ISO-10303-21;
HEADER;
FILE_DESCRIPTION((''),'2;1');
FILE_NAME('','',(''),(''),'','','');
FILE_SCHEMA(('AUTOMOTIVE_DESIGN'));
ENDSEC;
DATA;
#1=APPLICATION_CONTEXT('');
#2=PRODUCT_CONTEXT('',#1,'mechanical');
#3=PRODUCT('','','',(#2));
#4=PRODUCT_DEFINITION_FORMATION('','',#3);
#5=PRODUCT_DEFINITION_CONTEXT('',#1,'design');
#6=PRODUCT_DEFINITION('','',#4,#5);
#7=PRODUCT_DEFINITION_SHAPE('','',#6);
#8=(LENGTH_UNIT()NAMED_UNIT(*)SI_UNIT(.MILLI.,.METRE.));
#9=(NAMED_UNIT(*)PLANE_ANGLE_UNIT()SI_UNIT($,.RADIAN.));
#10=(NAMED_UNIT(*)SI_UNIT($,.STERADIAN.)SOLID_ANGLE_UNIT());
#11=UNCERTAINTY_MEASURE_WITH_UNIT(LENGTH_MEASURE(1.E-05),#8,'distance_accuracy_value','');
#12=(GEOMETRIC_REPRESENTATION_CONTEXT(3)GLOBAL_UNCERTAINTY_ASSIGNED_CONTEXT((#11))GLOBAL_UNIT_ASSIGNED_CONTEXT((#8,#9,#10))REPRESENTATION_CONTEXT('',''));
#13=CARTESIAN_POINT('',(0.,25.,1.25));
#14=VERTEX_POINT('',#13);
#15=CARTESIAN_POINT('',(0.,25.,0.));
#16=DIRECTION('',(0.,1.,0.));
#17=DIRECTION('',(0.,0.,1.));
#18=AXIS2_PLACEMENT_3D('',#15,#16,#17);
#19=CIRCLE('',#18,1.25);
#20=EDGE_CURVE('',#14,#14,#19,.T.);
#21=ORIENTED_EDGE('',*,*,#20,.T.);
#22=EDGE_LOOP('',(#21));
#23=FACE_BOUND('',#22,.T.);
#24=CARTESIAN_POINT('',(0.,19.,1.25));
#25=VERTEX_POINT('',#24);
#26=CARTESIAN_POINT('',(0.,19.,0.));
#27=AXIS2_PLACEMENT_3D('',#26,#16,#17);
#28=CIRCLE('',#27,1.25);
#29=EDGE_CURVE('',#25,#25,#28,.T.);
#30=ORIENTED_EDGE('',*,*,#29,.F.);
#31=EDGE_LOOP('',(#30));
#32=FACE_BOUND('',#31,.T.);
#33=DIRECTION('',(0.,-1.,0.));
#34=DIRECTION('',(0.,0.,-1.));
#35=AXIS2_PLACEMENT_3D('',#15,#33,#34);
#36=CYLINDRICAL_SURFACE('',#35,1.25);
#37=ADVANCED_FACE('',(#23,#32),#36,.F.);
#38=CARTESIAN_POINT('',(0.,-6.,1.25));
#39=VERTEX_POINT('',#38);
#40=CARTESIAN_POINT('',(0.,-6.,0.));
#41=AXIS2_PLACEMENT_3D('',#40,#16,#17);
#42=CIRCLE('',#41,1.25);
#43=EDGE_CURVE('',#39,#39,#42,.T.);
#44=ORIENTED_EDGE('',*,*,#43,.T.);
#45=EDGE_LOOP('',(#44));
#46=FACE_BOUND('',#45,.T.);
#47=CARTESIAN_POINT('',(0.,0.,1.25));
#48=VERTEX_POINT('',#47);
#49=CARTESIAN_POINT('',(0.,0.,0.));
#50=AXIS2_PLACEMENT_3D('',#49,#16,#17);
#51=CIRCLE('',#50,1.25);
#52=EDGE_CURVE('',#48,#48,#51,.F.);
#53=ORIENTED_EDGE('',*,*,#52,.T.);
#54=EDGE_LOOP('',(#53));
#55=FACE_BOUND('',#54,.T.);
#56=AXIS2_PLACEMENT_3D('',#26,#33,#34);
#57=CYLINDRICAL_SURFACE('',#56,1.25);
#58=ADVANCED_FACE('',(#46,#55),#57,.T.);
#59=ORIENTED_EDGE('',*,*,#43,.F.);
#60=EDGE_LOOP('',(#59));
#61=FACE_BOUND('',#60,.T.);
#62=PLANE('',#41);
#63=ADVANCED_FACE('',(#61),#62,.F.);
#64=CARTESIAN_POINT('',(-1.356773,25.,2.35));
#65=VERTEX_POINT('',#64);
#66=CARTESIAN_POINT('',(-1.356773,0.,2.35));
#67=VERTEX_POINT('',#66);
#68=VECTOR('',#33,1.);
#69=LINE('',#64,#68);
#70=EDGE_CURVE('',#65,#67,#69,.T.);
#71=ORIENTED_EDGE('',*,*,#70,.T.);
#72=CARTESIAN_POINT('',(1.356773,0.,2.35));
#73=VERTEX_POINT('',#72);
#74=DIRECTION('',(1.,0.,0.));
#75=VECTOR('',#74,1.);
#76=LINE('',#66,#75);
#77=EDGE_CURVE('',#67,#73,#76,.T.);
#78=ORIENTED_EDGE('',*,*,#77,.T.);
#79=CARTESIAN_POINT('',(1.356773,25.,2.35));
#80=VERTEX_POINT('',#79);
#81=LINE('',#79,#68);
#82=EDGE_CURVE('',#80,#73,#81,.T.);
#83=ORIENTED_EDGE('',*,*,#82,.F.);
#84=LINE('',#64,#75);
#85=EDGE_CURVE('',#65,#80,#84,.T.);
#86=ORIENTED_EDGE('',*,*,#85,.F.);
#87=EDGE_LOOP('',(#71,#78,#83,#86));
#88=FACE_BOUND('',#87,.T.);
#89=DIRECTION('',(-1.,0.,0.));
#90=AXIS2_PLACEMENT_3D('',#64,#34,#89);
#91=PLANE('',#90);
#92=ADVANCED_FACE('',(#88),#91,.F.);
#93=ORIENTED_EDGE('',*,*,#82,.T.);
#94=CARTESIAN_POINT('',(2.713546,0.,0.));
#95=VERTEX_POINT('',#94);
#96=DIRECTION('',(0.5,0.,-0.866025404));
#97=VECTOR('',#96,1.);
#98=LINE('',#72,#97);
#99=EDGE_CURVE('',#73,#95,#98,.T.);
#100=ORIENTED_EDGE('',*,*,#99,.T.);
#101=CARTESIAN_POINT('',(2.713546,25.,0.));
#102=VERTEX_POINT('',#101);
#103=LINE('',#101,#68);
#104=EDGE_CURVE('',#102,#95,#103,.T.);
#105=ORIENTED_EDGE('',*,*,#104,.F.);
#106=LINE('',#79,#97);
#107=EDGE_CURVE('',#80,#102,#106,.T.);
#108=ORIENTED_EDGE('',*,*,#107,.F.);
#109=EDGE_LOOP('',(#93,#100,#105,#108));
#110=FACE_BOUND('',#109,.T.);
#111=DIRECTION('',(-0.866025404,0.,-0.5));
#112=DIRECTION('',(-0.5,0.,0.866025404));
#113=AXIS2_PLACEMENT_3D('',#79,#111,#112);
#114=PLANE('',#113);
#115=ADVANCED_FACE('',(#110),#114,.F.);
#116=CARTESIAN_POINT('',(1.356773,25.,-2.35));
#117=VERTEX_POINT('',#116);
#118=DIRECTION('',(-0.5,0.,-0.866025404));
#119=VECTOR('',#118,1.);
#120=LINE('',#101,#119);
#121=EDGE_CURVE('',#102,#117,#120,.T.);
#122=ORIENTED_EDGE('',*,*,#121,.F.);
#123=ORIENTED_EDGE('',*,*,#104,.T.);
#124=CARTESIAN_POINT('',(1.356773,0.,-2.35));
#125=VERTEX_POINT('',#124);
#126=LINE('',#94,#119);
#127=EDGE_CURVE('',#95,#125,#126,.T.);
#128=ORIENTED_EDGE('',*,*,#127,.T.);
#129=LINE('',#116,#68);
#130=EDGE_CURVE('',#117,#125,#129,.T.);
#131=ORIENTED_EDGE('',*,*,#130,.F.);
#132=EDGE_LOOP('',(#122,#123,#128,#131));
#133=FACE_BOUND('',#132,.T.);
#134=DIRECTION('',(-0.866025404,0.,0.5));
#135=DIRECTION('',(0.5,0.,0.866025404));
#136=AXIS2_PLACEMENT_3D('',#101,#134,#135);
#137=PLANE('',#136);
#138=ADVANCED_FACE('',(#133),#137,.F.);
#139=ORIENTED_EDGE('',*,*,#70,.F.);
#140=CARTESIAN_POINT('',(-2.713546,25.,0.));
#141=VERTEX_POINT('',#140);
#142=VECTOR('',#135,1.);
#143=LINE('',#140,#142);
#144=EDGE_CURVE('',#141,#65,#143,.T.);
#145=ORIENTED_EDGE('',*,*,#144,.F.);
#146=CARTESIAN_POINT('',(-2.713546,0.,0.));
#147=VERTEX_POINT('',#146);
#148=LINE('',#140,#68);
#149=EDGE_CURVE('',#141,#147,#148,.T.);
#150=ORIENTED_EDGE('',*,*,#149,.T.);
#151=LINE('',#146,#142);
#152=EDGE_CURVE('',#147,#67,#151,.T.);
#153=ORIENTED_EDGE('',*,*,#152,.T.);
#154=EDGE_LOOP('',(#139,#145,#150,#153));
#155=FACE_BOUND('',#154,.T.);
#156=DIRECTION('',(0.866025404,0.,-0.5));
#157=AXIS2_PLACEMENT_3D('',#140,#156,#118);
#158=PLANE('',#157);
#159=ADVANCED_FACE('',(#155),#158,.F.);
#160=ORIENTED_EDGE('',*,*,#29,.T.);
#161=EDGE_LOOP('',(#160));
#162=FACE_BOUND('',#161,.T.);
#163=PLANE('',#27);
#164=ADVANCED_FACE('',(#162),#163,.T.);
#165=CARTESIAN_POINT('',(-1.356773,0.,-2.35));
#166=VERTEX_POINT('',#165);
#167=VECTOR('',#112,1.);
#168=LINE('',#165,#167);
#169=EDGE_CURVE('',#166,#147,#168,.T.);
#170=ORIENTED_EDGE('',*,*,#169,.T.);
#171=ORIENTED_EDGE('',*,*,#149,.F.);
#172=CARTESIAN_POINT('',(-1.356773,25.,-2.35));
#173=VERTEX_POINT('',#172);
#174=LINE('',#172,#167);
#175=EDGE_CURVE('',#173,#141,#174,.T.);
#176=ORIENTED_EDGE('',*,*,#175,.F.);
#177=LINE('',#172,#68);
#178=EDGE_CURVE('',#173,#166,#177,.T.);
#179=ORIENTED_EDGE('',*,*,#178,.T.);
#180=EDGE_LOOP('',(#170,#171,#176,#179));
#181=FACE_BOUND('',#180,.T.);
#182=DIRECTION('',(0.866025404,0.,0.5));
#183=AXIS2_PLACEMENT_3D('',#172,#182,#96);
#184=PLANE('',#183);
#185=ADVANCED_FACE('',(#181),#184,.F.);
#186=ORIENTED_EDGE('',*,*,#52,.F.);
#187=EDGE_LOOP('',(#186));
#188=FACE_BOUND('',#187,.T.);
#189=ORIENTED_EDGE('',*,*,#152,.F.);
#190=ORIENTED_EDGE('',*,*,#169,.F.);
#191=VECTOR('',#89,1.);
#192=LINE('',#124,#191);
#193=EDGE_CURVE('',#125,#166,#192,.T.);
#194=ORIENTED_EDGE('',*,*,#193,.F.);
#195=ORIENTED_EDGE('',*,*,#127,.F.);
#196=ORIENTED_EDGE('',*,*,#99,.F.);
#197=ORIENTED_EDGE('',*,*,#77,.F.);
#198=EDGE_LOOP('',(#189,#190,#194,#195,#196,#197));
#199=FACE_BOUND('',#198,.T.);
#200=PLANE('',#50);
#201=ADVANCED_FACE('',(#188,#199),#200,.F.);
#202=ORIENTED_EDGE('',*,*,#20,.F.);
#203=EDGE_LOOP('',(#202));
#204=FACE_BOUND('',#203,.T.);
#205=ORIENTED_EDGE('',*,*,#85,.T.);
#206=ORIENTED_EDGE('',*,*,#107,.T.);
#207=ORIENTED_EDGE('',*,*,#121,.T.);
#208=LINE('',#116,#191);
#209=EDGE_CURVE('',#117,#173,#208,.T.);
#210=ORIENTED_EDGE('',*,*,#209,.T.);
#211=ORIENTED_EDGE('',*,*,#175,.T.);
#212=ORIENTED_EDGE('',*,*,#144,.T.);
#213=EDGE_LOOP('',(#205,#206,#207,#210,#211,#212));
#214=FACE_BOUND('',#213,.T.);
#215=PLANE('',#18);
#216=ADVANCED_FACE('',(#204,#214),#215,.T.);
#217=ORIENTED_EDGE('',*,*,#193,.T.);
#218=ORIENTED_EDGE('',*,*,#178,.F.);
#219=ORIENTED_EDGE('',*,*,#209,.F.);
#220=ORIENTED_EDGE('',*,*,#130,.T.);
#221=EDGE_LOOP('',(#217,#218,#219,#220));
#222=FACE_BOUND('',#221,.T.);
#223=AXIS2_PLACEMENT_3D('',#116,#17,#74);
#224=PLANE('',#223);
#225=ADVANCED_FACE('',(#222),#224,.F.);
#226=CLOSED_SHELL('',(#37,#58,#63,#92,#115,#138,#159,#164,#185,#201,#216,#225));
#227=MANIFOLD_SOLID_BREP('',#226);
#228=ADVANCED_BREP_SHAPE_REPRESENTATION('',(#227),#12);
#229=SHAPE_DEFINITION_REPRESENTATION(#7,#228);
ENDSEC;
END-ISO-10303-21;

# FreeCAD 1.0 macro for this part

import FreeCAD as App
import Part
import Sketcher

V = App.Vector
Q = App.Units.Quantity

doc = App.newDocument("Part")
params = doc.addObject("Spreadsheet::Sheet", "Params")
for row, (alias, value) in enumerate([
    ("sketch1_diameter", "2.5 mm"),
    ("pad1_length", "25 mm"),
    ("sketch2_diameter", "2.5 mm"),
    ("pad2_length", "19 mm"),
    ("pad2_length2", "6 mm"),
], start=1):
    params.set(f"A{row}", alias)
    params.set(f"B{row}", "=" + value)
    params.setAlias(f"B{row}", alias)

body = doc.addObject("PartDesign::Body", "Body")

# Sketch on XZ plane
sketch1 = body.newObject("Sketcher::SketchObject", "Sketch")
sketch1.AttachmentSupport = (doc.getObject("XZ_Plane"), [""])
sketch1.MapMode = "FlatFace"
sketch1.addGeometry([
    Part.LineSegment(V(1.356773, -2.35, 0), V(-1.356773, -2.35, 0)),  # 0
    Part.LineSegment(V(-1.356773, -2.35, 0), V(-2.713546, 0, 0)),  # 1
    Part.LineSegment(V(-2.713546, 0, 0), V(-1.356773, 2.35, 0)),  # 2
    Part.LineSegment(V(-1.356773, 2.35, 0), V(1.356773, 2.35, 0)),  # 3
    Part.LineSegment(V(1.356773, 2.35, 0), V(2.713546, 0, 0)),  # 4
    Part.LineSegment(V(2.713546, 0, 0), V(1.356773, -2.35, 0)),  # 5
    Part.Circle(V(0, 0, 0), V(0, 0, 1), 1.25),  # 6
], False)
sketch1.addConstraint([
    Sketcher.Constraint("Coincident", 0, 2, 1, 1),
    Sketcher.Constraint("Coincident", 1, 2, 2, 1),
    Sketcher.Constraint("Coincident", 2, 2, 3, 1),
    Sketcher.Constraint("Coincident", 3, 2, 4, 1),
    Sketcher.Constraint("Coincident", 4, 2, 5, 1),
    Sketcher.Constraint("Coincident", 5, 2, 0, 1),
    Sketcher.Constraint("Horizontal", 0),
    Sketcher.Constraint("Horizontal", 3),
    Sketcher.Constraint("Coincident", 6, 3, -1, 1),
    Sketcher.Constraint("Symmetric", 0, 2, 3, 2, -1, 1),
    Sketcher.Constraint("Symmetric", 1, 2, 4, 2, -1, 1),
    Sketcher.Constraint("PointOnObject", 1, 2, -1),
    Sketcher.Constraint("Parallel", 2, 5),
    Sketcher.Constraint("Vertical", 0, 2, 2, 2),
    Sketcher.Constraint("Diameter", 6, 2.5),
    Sketcher.Constraint("Angle", 1, Q("120 deg")),
    Sketcher.Constraint("DistanceY", 0, 2, 2, 2, 4.7),
    Sketcher.Constraint("DistanceX", 0, 2, 0, 1, 2.713546),
])
sketch1.setExpression("Constraints[14]", "Params.sketch1_diameter")
pad1 = body.newObject("PartDesign::Pad", "Pad")
pad1.Profile = sketch1
pad1.setExpression("Length", "Params.pad1_length")
pad1.Reversed = True

# Sketch on XZ plane
sketch2 = body.newObject("Sketcher::SketchObject", "Sketch001")
sketch2.AttachmentSupport = (doc.getObject("XZ_Plane"), [""])
sketch2.MapMode = "FlatFace"
sketch2.addGeometry(Part.Circle(V(0, 0, 0), V(0, 0, 1), 1.25), False)
sketch2.addConstraint([
    Sketcher.Constraint("Coincident", 0, 3, -1, 1),
    Sketcher.Constraint("Diameter", 0, 2.5),
])
sketch2.setExpression("Constraints[1]", "Params.sketch2_diameter")
pad2 = body.newObject("PartDesign::Pad", "Pad001")
pad2.Profile = sketch2
pad2.Type = "TwoLengths"
pad2.setExpression("Length", "Params.pad2_length")
pad2.setExpression("Length2", "Params.pad2_length2")
pad2.Reversed = True

doc.recompute()
